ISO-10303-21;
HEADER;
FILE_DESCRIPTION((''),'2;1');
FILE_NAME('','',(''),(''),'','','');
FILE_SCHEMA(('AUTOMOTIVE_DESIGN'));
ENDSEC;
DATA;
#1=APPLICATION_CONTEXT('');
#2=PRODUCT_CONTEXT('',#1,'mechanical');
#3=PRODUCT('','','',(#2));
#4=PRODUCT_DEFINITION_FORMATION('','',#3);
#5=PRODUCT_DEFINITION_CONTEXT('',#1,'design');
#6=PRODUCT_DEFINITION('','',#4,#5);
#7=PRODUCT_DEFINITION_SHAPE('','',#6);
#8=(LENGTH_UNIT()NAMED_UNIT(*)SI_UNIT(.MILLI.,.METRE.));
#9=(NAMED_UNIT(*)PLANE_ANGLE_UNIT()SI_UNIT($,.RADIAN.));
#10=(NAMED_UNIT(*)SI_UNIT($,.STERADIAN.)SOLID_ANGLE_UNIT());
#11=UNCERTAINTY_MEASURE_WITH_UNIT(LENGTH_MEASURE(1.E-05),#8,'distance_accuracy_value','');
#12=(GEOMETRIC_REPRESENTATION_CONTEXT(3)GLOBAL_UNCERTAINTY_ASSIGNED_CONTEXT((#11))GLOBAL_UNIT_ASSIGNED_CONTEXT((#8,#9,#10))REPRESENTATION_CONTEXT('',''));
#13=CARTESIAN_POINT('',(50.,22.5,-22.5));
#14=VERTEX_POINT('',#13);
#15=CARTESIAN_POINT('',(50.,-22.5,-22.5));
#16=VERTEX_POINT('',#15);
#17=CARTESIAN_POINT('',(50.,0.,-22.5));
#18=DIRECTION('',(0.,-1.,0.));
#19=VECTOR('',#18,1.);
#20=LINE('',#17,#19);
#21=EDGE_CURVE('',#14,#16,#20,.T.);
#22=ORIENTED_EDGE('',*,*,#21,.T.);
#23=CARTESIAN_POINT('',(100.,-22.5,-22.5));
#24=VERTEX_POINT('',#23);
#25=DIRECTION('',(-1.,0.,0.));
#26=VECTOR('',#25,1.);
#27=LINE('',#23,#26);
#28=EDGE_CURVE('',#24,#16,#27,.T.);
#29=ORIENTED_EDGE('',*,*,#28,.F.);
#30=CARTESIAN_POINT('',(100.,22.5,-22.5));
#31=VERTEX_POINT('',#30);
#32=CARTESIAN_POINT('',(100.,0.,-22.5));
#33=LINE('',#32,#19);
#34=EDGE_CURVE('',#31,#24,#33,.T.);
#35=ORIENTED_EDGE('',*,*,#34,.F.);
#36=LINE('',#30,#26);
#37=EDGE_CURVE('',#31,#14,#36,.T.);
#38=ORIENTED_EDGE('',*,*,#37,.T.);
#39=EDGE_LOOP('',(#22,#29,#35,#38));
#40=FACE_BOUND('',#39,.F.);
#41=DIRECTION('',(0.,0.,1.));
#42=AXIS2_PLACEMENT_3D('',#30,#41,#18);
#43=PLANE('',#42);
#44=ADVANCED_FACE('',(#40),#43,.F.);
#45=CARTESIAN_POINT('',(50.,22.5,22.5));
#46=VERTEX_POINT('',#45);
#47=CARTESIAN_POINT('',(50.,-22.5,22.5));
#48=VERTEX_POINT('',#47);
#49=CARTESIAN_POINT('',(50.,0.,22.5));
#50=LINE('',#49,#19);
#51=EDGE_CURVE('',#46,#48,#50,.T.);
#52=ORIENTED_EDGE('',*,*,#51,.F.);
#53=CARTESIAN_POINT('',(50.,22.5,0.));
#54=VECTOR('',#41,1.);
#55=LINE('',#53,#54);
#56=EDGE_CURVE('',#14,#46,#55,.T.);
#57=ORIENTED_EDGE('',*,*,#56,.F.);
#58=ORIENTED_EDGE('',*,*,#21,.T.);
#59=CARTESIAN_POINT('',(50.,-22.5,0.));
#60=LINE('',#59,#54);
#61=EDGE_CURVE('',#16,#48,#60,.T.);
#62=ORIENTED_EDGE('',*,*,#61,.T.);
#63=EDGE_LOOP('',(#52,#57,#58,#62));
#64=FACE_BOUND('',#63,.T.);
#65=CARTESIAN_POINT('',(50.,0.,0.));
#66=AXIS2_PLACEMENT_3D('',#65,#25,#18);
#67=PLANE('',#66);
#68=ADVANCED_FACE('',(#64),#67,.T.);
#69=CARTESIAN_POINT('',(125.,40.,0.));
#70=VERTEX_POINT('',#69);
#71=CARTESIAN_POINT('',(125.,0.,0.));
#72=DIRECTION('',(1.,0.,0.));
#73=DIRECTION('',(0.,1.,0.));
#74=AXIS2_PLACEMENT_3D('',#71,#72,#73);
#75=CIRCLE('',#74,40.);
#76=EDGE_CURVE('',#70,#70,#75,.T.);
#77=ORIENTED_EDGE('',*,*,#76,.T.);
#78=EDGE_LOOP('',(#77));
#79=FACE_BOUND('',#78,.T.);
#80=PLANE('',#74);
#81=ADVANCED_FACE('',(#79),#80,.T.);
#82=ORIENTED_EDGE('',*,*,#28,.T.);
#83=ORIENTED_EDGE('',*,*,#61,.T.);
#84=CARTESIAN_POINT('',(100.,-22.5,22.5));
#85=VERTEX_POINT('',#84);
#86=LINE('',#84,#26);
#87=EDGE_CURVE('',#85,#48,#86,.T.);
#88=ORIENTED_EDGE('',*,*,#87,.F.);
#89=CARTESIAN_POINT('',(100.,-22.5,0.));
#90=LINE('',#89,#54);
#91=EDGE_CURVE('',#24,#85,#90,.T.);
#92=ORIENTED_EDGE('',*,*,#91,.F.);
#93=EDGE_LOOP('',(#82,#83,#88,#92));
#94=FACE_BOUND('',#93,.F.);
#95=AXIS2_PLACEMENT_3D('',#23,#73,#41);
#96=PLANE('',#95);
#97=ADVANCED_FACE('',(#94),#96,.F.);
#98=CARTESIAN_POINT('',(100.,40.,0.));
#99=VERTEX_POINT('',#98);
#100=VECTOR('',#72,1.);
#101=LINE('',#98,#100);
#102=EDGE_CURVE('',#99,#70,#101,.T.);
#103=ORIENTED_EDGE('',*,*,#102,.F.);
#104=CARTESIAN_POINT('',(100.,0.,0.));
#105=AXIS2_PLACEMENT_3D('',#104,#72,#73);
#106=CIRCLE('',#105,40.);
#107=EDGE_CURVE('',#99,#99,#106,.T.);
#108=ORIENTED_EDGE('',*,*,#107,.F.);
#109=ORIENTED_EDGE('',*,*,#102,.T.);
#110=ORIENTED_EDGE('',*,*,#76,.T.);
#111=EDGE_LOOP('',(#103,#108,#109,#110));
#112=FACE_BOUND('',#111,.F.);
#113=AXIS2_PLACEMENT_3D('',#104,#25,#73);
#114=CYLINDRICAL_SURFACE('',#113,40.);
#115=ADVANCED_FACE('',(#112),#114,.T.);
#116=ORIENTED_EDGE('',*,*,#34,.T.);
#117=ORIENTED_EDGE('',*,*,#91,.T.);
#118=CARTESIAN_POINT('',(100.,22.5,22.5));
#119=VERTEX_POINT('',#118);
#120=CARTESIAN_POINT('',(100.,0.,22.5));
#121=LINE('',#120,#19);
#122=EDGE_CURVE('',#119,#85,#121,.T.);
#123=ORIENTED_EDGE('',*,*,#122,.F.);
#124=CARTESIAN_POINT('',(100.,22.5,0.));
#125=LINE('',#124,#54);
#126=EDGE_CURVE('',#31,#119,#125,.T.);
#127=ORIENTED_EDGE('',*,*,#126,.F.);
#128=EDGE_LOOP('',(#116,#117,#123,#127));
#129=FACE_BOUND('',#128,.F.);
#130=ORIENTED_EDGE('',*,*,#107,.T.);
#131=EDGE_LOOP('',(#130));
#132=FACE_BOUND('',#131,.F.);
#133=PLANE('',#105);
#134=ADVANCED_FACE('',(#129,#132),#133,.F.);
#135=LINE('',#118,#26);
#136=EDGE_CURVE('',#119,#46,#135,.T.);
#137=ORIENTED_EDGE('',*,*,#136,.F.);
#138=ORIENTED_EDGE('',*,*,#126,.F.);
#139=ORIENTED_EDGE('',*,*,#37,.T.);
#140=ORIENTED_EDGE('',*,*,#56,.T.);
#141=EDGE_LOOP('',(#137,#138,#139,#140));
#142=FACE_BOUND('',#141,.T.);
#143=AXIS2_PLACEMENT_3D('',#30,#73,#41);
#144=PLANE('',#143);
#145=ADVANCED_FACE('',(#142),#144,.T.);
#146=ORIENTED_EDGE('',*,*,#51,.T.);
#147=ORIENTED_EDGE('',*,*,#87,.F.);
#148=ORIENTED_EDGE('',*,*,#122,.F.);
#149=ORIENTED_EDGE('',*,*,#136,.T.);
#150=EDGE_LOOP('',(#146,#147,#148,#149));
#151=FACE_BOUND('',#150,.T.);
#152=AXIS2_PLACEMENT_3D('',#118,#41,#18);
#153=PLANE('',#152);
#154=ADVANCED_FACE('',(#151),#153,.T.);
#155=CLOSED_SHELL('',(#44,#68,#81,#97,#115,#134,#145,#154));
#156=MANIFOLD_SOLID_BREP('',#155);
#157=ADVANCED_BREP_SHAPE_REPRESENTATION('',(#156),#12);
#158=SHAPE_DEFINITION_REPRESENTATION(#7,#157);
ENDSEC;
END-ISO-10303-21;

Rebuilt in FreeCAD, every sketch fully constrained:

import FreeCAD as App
import Part
import Sketcher
from FreeCAD import Vector
Q = App.Units.Quantity


def add_polygon(sketch, points):
    """Adds a closed chain of lines whose ends are joined by coincident constraints."""
    first, n = sketch.GeometryCount, len(points)
    for a, b in zip(points, points[1:] + points[:1]):
        sketch.addGeometry(Part.LineSegment(App.Vector(*a, 0), App.Vector(*b, 0)), False)
    for i in range(n):
        sketch.addConstraint(Sketcher.Constraint("Coincident", first + i, 2, first + (i + 1) % n, 1))

doc = App.newDocument("Part")
body = doc.addObject("PartDesign::Body", "Body")

# Sketch on YZ plane
sketch1 = body.newObject("Sketcher::SketchObject", "Sketch")
sketch1.AttachmentSupport = (doc.getObject("YZ_Plane"), [""])
sketch1.MapMode = "FlatFace"
sketch1.AttachmentOffset = App.Placement(Vector(0, 0, 100), App.Rotation())
sketch1.addGeometry(Part.Circle(Vector(0, 0, 0), Vector(0, 0, 1), 40), False)
sketch1.addConstraint(Sketcher.Constraint("Coincident", 0, 3, -1, 1))
sketch1.addConstraint(Sketcher.Constraint("Diameter", 0, Q("80 mm")))
pad1 = body.newObject("PartDesign::Pad", "Pad")
pad1.Profile = sketch1
pad1.Length = 25

# Sketch on YZ plane
sketch2 = body.newObject("Sketcher::SketchObject", "Sketch001")
sketch2.AttachmentSupport = (doc.getObject("YZ_Plane"), [""])
sketch2.MapMode = "FlatFace"
sketch2.AttachmentOffset = App.Placement(Vector(0, 0, 100), App.Rotation())
add_polygon(sketch2, [(22.5, 22.5), (22.5, -22.5), (-22.5, -22.5), (-22.5, 22.5)])  # lines 0-3
sketch2.addConstraint(Sketcher.Constraint("Vertical", 0))
sketch2.addConstraint(Sketcher.Constraint("Horizontal", 1))
sketch2.addConstraint(Sketcher.Constraint("Vertical", 2))
sketch2.addConstraint(Sketcher.Constraint("Horizontal", 3))
sketch2.addConstraint(Sketcher.Constraint("Symmetric", 0, 2, 2, 2, -1, 1))
sketch2.addConstraint(Sketcher.Constraint("Equal", 3, 0))
sketch2.addConstraint(Sketcher.Constraint("DistanceX", 1, 2, 1, 1, Q("45 mm")))
pad2 = body.newObject("PartDesign::Pad", "Pad001")
pad2.Profile = sketch2
pad2.Length = 50
pad2.Reversed = True

doc.recompute()
